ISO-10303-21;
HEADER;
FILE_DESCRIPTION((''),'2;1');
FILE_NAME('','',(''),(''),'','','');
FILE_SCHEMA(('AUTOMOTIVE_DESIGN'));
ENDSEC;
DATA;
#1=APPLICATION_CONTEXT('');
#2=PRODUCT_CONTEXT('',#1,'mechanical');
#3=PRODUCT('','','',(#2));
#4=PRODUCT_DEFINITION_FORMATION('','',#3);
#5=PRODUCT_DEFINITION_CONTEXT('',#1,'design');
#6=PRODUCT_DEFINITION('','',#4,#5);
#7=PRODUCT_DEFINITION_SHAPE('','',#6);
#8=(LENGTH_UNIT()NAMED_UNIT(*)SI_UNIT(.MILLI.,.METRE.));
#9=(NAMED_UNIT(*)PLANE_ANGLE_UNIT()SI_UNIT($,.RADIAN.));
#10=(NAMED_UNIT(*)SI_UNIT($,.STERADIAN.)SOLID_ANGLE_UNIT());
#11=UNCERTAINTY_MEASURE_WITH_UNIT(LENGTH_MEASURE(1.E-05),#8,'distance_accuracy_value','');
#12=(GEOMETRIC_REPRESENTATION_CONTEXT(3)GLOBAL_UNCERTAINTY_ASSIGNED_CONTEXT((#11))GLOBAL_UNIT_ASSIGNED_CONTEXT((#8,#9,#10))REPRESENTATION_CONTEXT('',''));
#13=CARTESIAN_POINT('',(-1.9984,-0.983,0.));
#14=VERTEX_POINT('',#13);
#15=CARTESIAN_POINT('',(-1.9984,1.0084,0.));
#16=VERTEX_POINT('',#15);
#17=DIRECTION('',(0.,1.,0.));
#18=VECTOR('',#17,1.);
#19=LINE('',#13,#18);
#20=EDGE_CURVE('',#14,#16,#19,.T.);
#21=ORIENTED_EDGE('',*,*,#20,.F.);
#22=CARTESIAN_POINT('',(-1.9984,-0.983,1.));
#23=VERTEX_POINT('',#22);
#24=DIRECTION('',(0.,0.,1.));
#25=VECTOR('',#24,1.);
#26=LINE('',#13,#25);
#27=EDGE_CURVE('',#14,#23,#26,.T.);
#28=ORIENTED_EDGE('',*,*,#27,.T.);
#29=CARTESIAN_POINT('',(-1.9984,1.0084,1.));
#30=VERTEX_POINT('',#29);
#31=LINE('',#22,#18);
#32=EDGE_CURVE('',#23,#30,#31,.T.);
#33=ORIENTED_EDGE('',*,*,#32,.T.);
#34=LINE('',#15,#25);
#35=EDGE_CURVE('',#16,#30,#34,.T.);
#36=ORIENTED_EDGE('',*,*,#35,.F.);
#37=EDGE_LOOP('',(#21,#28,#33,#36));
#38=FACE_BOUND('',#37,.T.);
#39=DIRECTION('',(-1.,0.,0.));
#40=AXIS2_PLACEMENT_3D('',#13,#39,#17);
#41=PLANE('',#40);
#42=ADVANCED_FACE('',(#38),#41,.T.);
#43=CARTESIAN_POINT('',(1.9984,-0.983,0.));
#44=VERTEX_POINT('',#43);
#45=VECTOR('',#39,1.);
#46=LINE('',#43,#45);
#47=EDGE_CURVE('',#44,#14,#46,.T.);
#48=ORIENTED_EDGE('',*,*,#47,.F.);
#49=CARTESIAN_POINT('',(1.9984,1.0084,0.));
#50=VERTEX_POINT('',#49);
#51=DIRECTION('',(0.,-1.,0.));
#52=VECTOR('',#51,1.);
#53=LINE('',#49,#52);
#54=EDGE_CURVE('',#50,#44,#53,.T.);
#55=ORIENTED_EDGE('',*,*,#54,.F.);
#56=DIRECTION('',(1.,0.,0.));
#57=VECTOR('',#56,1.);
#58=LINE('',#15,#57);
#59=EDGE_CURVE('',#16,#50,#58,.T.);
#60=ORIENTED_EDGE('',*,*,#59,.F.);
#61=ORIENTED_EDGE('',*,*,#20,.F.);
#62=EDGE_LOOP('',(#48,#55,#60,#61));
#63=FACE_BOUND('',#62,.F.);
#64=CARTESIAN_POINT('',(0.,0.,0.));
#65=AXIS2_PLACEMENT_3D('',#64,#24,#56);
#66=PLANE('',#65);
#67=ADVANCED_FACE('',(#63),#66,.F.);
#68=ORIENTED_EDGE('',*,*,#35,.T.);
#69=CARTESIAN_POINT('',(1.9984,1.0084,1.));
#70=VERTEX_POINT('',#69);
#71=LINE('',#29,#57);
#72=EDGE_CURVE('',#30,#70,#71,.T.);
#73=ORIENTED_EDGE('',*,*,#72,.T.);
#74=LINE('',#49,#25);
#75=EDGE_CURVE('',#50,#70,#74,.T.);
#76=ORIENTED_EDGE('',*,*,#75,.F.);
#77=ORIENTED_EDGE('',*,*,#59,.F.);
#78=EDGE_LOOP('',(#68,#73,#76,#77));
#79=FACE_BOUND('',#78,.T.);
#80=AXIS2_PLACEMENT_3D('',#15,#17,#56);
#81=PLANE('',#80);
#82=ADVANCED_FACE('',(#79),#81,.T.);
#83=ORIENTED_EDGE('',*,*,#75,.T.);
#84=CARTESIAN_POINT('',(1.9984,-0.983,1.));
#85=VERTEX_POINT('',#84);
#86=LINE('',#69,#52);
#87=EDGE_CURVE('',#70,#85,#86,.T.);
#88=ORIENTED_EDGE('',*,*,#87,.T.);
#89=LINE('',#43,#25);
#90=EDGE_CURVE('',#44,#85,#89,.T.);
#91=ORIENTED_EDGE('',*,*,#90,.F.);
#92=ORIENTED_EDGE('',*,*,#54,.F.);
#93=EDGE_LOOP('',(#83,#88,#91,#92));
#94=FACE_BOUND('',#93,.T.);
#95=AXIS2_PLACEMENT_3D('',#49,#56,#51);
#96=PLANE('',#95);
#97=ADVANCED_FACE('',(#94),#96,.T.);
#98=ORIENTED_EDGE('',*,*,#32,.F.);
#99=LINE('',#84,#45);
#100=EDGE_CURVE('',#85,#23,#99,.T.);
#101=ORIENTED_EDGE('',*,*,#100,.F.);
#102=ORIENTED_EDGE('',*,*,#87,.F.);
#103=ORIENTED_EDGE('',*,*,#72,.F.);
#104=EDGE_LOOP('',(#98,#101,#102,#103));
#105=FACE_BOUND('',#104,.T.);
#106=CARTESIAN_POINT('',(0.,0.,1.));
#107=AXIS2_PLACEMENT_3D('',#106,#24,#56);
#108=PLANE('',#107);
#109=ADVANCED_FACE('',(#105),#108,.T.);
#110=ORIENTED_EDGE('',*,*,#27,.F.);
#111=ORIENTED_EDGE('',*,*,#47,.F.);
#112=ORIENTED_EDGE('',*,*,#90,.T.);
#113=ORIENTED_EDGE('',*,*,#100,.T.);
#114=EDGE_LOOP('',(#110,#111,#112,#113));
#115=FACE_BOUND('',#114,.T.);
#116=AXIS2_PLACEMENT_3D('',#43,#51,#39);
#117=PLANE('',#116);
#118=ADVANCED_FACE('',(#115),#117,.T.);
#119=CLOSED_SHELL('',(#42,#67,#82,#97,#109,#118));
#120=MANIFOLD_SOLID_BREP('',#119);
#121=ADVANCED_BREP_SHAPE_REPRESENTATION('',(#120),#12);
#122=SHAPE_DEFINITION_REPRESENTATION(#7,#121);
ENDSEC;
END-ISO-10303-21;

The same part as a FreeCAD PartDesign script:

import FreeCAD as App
import Part
import Sketcher
from FreeCAD import Vector
Q = App.Units.Quantity


def add_polygon(sketch, points):
    """Adds a closed chain of lines whose ends are joined by coincident constraints."""
    first, n = sketch.GeometryCount, len(points)
    for a, b in zip(points, points[1:] + points[:1]):
        sketch.addGeometry(Part.LineSegment(App.Vector(*a, 0), App.Vector(*b, 0)), False)
    for i in range(n):
        sketch.addConstraint(Sketcher.Constraint("Coincident", first + i, 2, first + (i + 1) % n, 1))

doc = App.newDocument("Part")
body = doc.addObject("PartDesign::Body", "Body")

sketch1 = doc.addObject("Sketcher::SketchObject", "Sketch")
body.addObject(sketch1)
sketch1.AttachmentSupport = (doc.XY_Plane, [""])
sketch1.MapMode = "FlatFace"
add_polygon(sketch1, [(2, 1), (-2, 1), (-2, -1), (2, -1)])
sketch1.addConstraint([
    Sketcher.Constraint("Horizontal", 0),
    Sketcher.Constraint("Vertical", 1),
    Sketcher.Constraint("Horizontal", 2),
    Sketcher.Constraint("Vertical", 3),
    Sketcher.Constraint("DistanceX", 0, 2, 0, 1, Q("3.9968 mm")),
    Sketcher.Constraint("DistanceY", 1, 2, 1, 1, Q("1.9914 mm")),
    Sketcher.Constraint("DistanceY", 1, 2, -1, 1, Q("0.983 mm")),
    Sketcher.Constraint("DistanceX", 0, 2, -1, 1, Q("1.9984 mm")),
])
pad1 = doc.addObject("PartDesign::Pad", "Pad")
body.addObject(pad1)
pad1.Profile = sketch1
pad1.Length = 1

doc.recompute()
